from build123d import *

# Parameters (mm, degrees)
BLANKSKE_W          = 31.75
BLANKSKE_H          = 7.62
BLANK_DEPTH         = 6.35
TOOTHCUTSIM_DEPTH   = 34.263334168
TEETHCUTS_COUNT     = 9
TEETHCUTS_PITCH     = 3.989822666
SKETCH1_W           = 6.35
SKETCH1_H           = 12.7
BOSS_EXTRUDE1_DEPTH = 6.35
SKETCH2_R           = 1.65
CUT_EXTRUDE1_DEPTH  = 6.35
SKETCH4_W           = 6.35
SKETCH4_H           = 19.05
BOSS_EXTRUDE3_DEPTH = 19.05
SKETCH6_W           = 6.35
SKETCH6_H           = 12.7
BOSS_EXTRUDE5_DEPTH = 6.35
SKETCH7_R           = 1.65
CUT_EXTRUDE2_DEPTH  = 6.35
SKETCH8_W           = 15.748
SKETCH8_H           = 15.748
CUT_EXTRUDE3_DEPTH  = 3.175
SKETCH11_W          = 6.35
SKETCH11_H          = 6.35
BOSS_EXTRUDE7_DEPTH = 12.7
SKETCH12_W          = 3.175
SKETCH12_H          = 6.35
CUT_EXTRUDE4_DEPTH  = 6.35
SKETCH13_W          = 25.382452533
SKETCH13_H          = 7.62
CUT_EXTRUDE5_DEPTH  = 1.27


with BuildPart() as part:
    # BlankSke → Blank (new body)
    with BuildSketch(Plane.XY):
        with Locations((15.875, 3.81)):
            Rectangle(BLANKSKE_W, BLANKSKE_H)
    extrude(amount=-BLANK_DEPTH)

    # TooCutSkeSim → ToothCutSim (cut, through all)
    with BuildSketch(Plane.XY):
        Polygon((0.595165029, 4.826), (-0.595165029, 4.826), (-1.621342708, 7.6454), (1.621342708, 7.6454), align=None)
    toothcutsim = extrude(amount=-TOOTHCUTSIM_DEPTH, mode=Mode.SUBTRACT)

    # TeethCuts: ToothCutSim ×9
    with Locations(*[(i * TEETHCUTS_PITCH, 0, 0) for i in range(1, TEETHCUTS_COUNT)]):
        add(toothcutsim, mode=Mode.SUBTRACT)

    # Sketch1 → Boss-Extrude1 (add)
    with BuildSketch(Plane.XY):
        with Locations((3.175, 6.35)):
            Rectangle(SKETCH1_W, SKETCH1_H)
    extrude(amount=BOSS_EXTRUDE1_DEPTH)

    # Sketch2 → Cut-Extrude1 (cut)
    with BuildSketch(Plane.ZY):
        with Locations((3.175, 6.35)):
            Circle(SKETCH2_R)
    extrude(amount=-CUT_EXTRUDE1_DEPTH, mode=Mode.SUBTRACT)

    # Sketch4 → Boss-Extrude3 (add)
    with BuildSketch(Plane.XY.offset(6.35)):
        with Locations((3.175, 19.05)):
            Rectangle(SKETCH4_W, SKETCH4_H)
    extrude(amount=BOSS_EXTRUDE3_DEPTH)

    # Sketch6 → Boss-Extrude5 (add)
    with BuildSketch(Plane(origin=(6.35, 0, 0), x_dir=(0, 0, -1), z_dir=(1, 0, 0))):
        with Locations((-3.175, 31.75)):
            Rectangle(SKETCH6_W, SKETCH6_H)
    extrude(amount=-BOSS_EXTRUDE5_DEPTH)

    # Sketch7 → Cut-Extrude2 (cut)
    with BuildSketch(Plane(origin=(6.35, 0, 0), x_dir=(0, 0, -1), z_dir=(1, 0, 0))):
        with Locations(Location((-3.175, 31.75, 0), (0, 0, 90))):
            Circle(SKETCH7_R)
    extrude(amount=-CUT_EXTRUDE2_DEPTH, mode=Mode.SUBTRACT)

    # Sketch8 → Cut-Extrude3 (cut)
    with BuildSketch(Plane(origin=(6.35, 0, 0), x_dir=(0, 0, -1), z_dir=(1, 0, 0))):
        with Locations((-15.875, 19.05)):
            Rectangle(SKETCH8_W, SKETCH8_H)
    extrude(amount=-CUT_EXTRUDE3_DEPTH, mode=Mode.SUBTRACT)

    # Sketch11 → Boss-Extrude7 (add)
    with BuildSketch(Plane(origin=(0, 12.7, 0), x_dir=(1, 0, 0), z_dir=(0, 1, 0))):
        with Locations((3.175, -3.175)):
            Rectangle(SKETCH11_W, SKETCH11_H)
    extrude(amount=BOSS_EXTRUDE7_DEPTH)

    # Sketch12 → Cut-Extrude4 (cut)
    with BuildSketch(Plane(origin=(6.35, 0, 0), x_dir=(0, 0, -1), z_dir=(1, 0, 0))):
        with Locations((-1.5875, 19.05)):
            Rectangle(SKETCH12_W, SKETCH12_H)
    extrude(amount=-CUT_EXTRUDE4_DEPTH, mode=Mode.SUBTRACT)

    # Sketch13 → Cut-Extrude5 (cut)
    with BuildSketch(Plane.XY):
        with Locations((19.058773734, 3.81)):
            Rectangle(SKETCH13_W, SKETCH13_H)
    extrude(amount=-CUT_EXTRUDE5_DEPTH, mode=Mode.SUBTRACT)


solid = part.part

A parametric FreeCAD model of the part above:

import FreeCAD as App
import Part
import Sketcher
from FreeCAD import Vector
Q = App.Units.Quantity


def add_polygon(sketch, points):
    """Adds a closed chain of lines whose ends are joined by coincident constraints."""
    first, n = sketch.GeometryCount, len(points)
    for a, b in zip(points, points[1:] + points[:1]):
        sketch.addGeometry(Part.LineSegment(App.Vector(*a, 0), App.Vector(*b, 0)), False)
    for i in range(n):
        sketch.addConstraint(Sketcher.Constraint("Coincident", first + i, 2, first + (i + 1) % n, 1))

doc = App.newDocument("Part")
body = doc.addObject("PartDesign::Body", "Body")

sketch1 = doc.addObject("Sketcher::SketchObject", "Sketch")
body.addObject(sketch1)
sketch1.AttachmentSupport = (doc.XY_Plane, [""])
sketch1.MapMode = "FlatFace"
add_polygon(sketch1, [(0, 7.62), (0, 0), (31.75, 0), (31.75, 7.62)])
sketch1.addConstraint([
    Sketcher.Constraint("Vertical", 0),
    Sketcher.Constraint("Horizontal", 1),
    Sketcher.Constraint("Vertical", 2),
    Sketcher.Constraint("Horizontal", 3),
    Sketcher.Constraint("Coincident", 0, 2, -1, 1),
    Sketcher.Constraint("DistanceY", 0, 2, 0, 1, Q("0.3 in")),
    Sketcher.Constraint("DistanceX", 1, 1, 1, 2, Q("1.25 in")),
])
pad1 = doc.addObject("PartDesign::Pad", "Pad")
body.addObject(pad1)
pad1.Profile = sketch1
pad1.Length = Q("0.25 in")
pad1.Reversed = True

sketch2 = doc.addObject("Sketcher::SketchObject", "Sketch001")
body.addObject(sketch2)
sketch2.AttachmentSupport = (doc.XY_Plane, [""])
sketch2.MapMode = "FlatFace"
add_polygon(sketch2, [(-0.595165, 4.826), (0.595165, 4.826), (1.621343, 7.6454), (-1.621343, 7.6454)])
sketch2.addConstraint([
    Sketcher.Constraint("Horizontal", 0),
    Sketcher.Constraint("Horizontal", 2),
    Sketcher.Constraint("Equal", 1, 3),
    Sketcher.Constraint("Angle", 1, Q("70 deg")),
    Sketcher.Constraint("DistanceY", -1, 1, 0, 2, Q("0.19 in")),
    Sketcher.Constraint("DistanceY", -1, 1, 1, 2, Q("0.301 in")),
    Sketcher.Constraint("DistanceX", 0, 1, 0, 2, Q("1.19033 mm")),
    Sketcher.Constraint("DistanceX", -1, 1, 0, 2, Q("0.595165 mm")),
])
pocket1 = doc.addObject("PartDesign::Pocket", "Pocket")
body.addObject(pocket1)
pocket1.Profile = sketch2
pocket1.Type = "ThroughAll"
doc.recompute()

linearpattern = doc.addObject("PartDesign::LinearPattern", "LinearPattern")
body.addObject(linearpattern)
linearpattern.Originals = [pocket1]
linearpattern.Direction = (doc.X_Axis, [""])
linearpattern.Mode = "offset"
linearpattern.Offset = 3.989823
linearpattern.Occurrences = 9
body.Tip = linearpattern

sketch3 = doc.addObject("Sketcher::SketchObject", "Sketch002")
body.addObject(sketch3)
sketch3.AttachmentSupport = (doc.XY_Plane, [""])
sketch3.MapMode = "FlatFace"
add_polygon(sketch3, [(0, 12.7), (0, 0), (6.35, 0), (6.35, 12.7)])
sketch3.addConstraint([
    Sketcher.Constraint("Vertical", 0),
    Sketcher.Constraint("Horizontal", 1),
    Sketcher.Constraint("Vertical", 2),
    Sketcher.Constraint("Horizontal", 3),
    Sketcher.Constraint("Coincident", 0, 2, -1, 1),
    Sketcher.Constraint("DistanceY", 0, 2, 0, 1, Q("0.5 in")),
    Sketcher.Constraint("DistanceX", 1, 1, 1, 2, Q("0.25 in")),
])
pad2 = doc.addObject("PartDesign::Pad", "Pad001")
body.addObject(pad2)
pad2.Profile = sketch3
pad2.Length = Q("0.25 in")

sketch4 = doc.addObject("Sketcher::SketchObject", "Sketch003")
body.addObject(sketch4)
sketch4.AttachmentSupport = (doc.YZ_Plane, [""])
sketch4.MapMode = "FlatFace"
sketch4.addGeometry(Part.Circle(Vector(6.35, 3.175, 0), Vector(0, 0, 1), 1.65), False)
sketch4.addConstraint([
    Sketcher.Constraint("Diameter", 0, Q("3.3 mm")),
    Sketcher.Constraint("DistanceX", -1, 1, 0, 3, Q("0.25 in")),
    Sketcher.Constraint("DistanceY", -1, 1, 0, 3, Q("0.125 in")),
])
pocket2 = doc.addObject("PartDesign::Pocket", "Pocket001")
body.addObject(pocket2)
pocket2.Profile = sketch4
pocket2.Length = Q("0.25 in")
pocket2.Reversed = True

sketch5 = doc.addObject("Sketcher::SketchObject", "Sketch004")
body.addObject(sketch5)
sketch5.AttachmentSupport = (doc.XY_Plane, [""])
sketch5.MapMode = "FlatFace"
sketch5.AttachmentOffset = App.Placement(Vector(0, 0, 0.25 * 25.4), App.Rotation())
add_polygon(sketch5, [(0, 28.575), (0, 9.525), (6.35, 9.525), (6.35, 28.575)])
sketch5.addConstraint([
    Sketcher.Constraint("Vertical", 0),
    Sketcher.Constraint("Horizontal", 1),
    Sketcher.Constraint("Vertical", 2),
    Sketcher.Constraint("Horizontal", 3),
    Sketcher.Constraint("PointOnObject", 0, 2, -2),
    Sketcher.Constraint("DistanceX", 1, 1, 1, 2, Q("0.25 in")),
    Sketcher.Constraint("DistanceY", 0, 2, 0, 1, Q("0.75 in")),
    Sketcher.Constraint("DistanceY", -1, 1, 0, 2, Q("0.375 in")),
])
pad3 = doc.addObject("PartDesign::Pad", "Pad002")
body.addObject(pad3)
pad3.Profile = sketch5
pad3.Length = Q("0.75 in")

sketch6 = doc.addObject("Sketcher::SketchObject", "Sketch005")
body.addObject(sketch6)
sketch6.AttachmentSupport = (doc.YZ_Plane, [""])
sketch6.MapMode = "FlatFace"
sketch6.AttachmentOffset = App.Placement(Vector(0, 0, 0.25 * 25.4), App.Rotation())
add_polygon(sketch6, [(38.1, 6.35), (25.4, 6.35), (25.4, 0), (38.1, 0)])
sketch6.addConstraint([
    Sketcher.Constraint("Horizontal", 0),
    Sketcher.Constraint("Vertical", 1),
    Sketcher.Constraint("Horizontal", 2),
    Sketcher.Constraint("Vertical", 3),
    Sketcher.Constraint("PointOnObject", 1, 2, -1),
    Sketcher.Constraint("DistanceX", 0, 2, 0, 1, Q("0.5 in")),
    Sketcher.Constraint("DistanceX", -1, 1, 0, 2, Q("1 in")),
    Sketcher.Constraint("DistanceY", 1, 2, 1, 1, Q("0.25 in")),
])
pad4 = doc.addObject("PartDesign::Pad", "Pad003")
body.addObject(pad4)
pad4.Profile = sketch6
pad4.Length = Q("0.25 in")
pad4.Reversed = True

sketch7 = doc.addObject("Sketcher::SketchObject", "Sketch006")
body.addObject(sketch7)
sketch7.AttachmentSupport = (doc.YZ_Plane, [""])
sketch7.MapMode = "FlatFace"
sketch7.AttachmentOffset = App.Placement(Vector(0, 0, 0.25 * 25.4), App.Rotation())
sketch7.addGeometry(Part.Circle(Vector(31.75, 3.175, 0), Vector(0, 0, 1), 1.65), False)
sketch7.addConstraint([
    Sketcher.Constraint("Diameter", 0, Q("3.3 mm")),
    Sketcher.Constraint("DistanceX", -1, 1, 0, 3, Q("1.25 in")),
    Sketcher.Constraint("DistanceY", -1, 1, 0, 3, Q("0.125 in")),
])
pocket3 = doc.addObject("PartDesign::Pocket", "Pocket002")
body.addObject(pocket3)
pocket3.Profile = sketch7
pocket3.Length = Q("0.25 in")

sketch8 = doc.addObject("Sketcher::SketchObject", "Sketch007")
body.addObject(sketch8)
sketch8.AttachmentSupport = (doc.YZ_Plane, [""])
sketch8.MapMode = "FlatFace"
sketch8.AttachmentOffset = App.Placement(Vector(0, 0, 0.25 * 25.4), App.Rotation())
add_polygon(sketch8, [(26.924, 23.749), (11.176, 23.749), (11.176, 8.001), (26.924, 8.001)])
sketch8.addConstraint([
    Sketcher.Constraint("Horizontal", 0),
    Sketcher.Constraint("Vertical", 1),
    Sketcher.Constraint("Horizontal", 2),
    Sketcher.Constraint("Vertical", 3),
    Sketcher.Constraint("Equal", 2, 1),
    Sketcher.Constraint("DistanceX", 0, 2, 0, 1, Q("0.62 in")),
    Sketcher.Constraint("DistanceX", -1, 1, 0, 2, Q("0.44 in")),
    Sketcher.Constraint("DistanceY", -1, 1, 0, 2, Q("0.935 in")),
])
pocket4 = doc.addObject("PartDesign::Pocket", "Pocket003")
body.addObject(pocket4)
pocket4.Profile = sketch8
pocket4.Length = Q("0.125 in")

sketch9 = doc.addObject("Sketcher::SketchObject", "Sketch008")
body.addObject(sketch9)
sketch9.AttachmentSupport = (doc.XZ_Plane, [""])
sketch9.MapMode = "FlatFace"
sketch9.AttachmentOffset = App.Placement(Vector(0, 0, -0.5 * 25.4), App.Rotation())
add_polygon(sketch9, [(0, 0), (0, 6.35), (6.35, 6.35), (6.35, 0)])
sketch9.addConstraint([
    Sketcher.Constraint("Vertical", 0),
    Sketcher.Constraint("Horizontal", 1),
    Sketcher.Constraint("Vertical", 2),
    Sketcher.Constraint("Horizontal", 3),
    Sketcher.Constraint("Coincident", 3, 2, -1, 1),
    Sketcher.Constraint("Equal", 3, 0),
    Sketcher.Constraint("DistanceX", 1, 1, 1, 2, Q("0.25 in")),
])
pad5 = doc.addObject("PartDesign::Pad", "Pad004")
body.addObject(pad5)
pad5.Profile = sketch9
pad5.Length = Q("0.5 in")
pad5.Reversed = True

sketch10 = doc.addObject("Sketcher::SketchObject", "Sketch009")
body.addObject(sketch10)
sketch10.AttachmentSupport = (doc.YZ_Plane, [""])
sketch10.MapMode = "FlatFace"
sketch10.AttachmentOffset = App.Placement(Vector(0, 0, 0.25 * 25.4), App.Rotation())
add_polygon(sketch10, [(22.225, 3.175), (15.875, 3.175), (15.875, 0), (22.225, 0)])
sketch10.addConstraint([
    Sketcher.Constraint("Horizontal", 0),
    Sketcher.Constraint("Vertical", 1),
    Sketcher.Constraint("Horizontal", 2),
    Sketcher.Constraint("Vertical", 3),
    Sketcher.Constraint("PointOnObject", 1, 2, -1),
    Sketcher.Constraint("DistanceX", 0, 2, 0, 1, Q("0.25 in")),
    Sketcher.Constraint("DistanceY", 1, 2, 1, 1, Q("0.125 in")),
    Sketcher.Constraint("DistanceX", -1, 1, 0, 2, Q("0.625 in")),
])
pocket5 = doc.addObject("PartDesign::Pocket", "Pocket004")
body.addObject(pocket5)
pocket5.Profile = sketch10
pocket5.Length = Q("0.25 in")

sketch11 = doc.addObject("Sketcher::SketchObject", "Sketch010")
body.addObject(sketch11)
sketch11.AttachmentSupport = (doc.XY_Plane, [""])
sketch11.MapMode = "FlatFace"
add_polygon(sketch11, [(6.367547, 7.62), (6.367547, 0), (31.75, 0), (31.75, 7.62)])
sketch11.addConstraint([
    Sketcher.Constraint("Vertical", 0),
    Sketcher.Constraint("Horizontal", 1),
    Sketcher.Constraint("Vertical", 2),
    Sketcher.Constraint("Horizontal", 3),
    Sketcher.Constraint("PointOnObject", 0, 2, -1),
    Sketcher.Constraint("DistanceY", 0, 2, 0, 1, Q("0.3 in")),
    Sketcher.Constraint("DistanceX", -1, 1, 1, 2, Q("1.25 in")),
    Sketcher.Constraint("DistanceX", 1, 1, 1, 2, Q("25.382453 mm")),
])
pocket6 = doc.addObject("PartDesign::Pocket", "Pocket005")
body.addObject(pocket6)
pocket6.Profile = sketch11
pocket6.Length = Q("0.05 in")

doc.recompute()
